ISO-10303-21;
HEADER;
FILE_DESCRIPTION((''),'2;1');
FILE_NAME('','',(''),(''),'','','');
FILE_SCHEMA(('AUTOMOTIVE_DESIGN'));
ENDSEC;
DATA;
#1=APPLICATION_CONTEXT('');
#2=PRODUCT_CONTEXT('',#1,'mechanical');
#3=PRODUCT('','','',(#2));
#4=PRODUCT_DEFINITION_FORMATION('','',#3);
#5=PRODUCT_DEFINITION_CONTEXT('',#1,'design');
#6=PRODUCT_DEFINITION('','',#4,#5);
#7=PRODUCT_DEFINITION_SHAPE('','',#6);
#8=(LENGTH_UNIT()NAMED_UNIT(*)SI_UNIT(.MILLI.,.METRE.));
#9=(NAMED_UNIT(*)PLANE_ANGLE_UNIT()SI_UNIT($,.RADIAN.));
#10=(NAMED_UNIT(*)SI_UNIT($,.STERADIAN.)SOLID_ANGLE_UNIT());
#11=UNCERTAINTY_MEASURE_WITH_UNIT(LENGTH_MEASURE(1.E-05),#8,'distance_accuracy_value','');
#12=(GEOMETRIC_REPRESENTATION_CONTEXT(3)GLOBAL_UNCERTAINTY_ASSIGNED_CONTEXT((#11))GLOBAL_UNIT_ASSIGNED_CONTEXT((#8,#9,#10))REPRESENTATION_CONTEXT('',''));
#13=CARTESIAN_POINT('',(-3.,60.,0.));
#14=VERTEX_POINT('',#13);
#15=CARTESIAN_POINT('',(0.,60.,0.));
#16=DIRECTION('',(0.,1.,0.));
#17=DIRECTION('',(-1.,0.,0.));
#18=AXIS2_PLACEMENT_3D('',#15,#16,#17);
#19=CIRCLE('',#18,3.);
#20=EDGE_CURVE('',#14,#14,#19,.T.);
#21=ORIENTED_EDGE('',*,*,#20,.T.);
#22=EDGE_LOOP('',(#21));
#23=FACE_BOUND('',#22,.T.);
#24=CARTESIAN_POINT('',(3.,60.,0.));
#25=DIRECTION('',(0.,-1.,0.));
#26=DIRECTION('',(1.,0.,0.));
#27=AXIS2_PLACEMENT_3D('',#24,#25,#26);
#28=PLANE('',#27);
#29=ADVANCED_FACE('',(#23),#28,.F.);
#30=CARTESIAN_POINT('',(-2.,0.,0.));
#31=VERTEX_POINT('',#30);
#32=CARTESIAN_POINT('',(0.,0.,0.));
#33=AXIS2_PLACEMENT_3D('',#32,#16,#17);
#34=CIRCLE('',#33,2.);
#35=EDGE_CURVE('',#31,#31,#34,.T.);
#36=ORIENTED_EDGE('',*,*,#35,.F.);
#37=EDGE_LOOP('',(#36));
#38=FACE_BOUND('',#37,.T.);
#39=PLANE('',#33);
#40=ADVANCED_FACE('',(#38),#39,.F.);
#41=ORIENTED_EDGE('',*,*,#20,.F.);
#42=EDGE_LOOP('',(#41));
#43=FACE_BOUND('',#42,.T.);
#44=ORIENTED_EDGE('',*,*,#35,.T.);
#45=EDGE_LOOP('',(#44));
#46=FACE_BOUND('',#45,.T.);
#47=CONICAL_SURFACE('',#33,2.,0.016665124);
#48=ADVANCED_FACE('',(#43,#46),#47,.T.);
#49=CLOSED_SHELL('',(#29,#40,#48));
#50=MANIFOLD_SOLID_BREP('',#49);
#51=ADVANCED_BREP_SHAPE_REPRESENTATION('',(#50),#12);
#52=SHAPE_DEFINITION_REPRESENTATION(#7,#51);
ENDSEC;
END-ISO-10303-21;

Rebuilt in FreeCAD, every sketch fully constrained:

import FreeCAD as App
import Part
import Sketcher

doc = App.newDocument("Part")
body = doc.addObject("PartDesign::Body", "Body")

# Sketch on XY plane
sketch1 = doc.addObject("Sketcher::SketchObject", "Sketch")
body.addObject(sketch1)
sketch1.AttachmentSupport = (doc.XY_Plane, [""])
sketch1.MapMode = "FlatFace"
sketch1.addGeometry([
    Part.LineSegment(App.Vector(0, 0, 0), App.Vector(2, 0, 0)),
    Part.LineSegment(App.Vector(2, 0, 0), App.Vector(3, 60, 0)),
    Part.LineSegment(App.Vector(3, 60, 0), App.Vector(0, 60, 0)),
    Part.LineSegment(App.Vector(0, 60, 0), App.Vector(0, 0, 0)),
], False)
sketch1.addConstraint([
    Sketcher.Constraint("Coincident", 0, 2, 1, 1),
    Sketcher.Constraint("Coincident", 1, 2, 2, 1),
    Sketcher.Constraint("Coincident", 2, 2, 3, 1),
    Sketcher.Constraint("Coincident", 3, 2, 0, 1),
    Sketcher.Constraint("Horizontal", 0),
    Sketcher.Constraint("Horizontal", 2),
    Sketcher.Constraint("Vertical", 3),
    Sketcher.Constraint("Coincident", 3, 2, -1, 1),
    Sketcher.Constraint("DistanceX", 0, 1, 0, 2, 2.0),
    Sketcher.Constraint("DistanceX", 2, 2, 2, 1, 3.0),
    Sketcher.Constraint("DistanceY", 3, 2, 3, 1, 60.0),
])
revolution = doc.addObject("PartDesign::Revolution", "Revolution")
body.addObject(revolution)
revolution.Profile = sketch1
revolution.ReferenceAxis = (sketch1, ["V_Axis"])
revolution.Angle = 360

doc.recompute()
